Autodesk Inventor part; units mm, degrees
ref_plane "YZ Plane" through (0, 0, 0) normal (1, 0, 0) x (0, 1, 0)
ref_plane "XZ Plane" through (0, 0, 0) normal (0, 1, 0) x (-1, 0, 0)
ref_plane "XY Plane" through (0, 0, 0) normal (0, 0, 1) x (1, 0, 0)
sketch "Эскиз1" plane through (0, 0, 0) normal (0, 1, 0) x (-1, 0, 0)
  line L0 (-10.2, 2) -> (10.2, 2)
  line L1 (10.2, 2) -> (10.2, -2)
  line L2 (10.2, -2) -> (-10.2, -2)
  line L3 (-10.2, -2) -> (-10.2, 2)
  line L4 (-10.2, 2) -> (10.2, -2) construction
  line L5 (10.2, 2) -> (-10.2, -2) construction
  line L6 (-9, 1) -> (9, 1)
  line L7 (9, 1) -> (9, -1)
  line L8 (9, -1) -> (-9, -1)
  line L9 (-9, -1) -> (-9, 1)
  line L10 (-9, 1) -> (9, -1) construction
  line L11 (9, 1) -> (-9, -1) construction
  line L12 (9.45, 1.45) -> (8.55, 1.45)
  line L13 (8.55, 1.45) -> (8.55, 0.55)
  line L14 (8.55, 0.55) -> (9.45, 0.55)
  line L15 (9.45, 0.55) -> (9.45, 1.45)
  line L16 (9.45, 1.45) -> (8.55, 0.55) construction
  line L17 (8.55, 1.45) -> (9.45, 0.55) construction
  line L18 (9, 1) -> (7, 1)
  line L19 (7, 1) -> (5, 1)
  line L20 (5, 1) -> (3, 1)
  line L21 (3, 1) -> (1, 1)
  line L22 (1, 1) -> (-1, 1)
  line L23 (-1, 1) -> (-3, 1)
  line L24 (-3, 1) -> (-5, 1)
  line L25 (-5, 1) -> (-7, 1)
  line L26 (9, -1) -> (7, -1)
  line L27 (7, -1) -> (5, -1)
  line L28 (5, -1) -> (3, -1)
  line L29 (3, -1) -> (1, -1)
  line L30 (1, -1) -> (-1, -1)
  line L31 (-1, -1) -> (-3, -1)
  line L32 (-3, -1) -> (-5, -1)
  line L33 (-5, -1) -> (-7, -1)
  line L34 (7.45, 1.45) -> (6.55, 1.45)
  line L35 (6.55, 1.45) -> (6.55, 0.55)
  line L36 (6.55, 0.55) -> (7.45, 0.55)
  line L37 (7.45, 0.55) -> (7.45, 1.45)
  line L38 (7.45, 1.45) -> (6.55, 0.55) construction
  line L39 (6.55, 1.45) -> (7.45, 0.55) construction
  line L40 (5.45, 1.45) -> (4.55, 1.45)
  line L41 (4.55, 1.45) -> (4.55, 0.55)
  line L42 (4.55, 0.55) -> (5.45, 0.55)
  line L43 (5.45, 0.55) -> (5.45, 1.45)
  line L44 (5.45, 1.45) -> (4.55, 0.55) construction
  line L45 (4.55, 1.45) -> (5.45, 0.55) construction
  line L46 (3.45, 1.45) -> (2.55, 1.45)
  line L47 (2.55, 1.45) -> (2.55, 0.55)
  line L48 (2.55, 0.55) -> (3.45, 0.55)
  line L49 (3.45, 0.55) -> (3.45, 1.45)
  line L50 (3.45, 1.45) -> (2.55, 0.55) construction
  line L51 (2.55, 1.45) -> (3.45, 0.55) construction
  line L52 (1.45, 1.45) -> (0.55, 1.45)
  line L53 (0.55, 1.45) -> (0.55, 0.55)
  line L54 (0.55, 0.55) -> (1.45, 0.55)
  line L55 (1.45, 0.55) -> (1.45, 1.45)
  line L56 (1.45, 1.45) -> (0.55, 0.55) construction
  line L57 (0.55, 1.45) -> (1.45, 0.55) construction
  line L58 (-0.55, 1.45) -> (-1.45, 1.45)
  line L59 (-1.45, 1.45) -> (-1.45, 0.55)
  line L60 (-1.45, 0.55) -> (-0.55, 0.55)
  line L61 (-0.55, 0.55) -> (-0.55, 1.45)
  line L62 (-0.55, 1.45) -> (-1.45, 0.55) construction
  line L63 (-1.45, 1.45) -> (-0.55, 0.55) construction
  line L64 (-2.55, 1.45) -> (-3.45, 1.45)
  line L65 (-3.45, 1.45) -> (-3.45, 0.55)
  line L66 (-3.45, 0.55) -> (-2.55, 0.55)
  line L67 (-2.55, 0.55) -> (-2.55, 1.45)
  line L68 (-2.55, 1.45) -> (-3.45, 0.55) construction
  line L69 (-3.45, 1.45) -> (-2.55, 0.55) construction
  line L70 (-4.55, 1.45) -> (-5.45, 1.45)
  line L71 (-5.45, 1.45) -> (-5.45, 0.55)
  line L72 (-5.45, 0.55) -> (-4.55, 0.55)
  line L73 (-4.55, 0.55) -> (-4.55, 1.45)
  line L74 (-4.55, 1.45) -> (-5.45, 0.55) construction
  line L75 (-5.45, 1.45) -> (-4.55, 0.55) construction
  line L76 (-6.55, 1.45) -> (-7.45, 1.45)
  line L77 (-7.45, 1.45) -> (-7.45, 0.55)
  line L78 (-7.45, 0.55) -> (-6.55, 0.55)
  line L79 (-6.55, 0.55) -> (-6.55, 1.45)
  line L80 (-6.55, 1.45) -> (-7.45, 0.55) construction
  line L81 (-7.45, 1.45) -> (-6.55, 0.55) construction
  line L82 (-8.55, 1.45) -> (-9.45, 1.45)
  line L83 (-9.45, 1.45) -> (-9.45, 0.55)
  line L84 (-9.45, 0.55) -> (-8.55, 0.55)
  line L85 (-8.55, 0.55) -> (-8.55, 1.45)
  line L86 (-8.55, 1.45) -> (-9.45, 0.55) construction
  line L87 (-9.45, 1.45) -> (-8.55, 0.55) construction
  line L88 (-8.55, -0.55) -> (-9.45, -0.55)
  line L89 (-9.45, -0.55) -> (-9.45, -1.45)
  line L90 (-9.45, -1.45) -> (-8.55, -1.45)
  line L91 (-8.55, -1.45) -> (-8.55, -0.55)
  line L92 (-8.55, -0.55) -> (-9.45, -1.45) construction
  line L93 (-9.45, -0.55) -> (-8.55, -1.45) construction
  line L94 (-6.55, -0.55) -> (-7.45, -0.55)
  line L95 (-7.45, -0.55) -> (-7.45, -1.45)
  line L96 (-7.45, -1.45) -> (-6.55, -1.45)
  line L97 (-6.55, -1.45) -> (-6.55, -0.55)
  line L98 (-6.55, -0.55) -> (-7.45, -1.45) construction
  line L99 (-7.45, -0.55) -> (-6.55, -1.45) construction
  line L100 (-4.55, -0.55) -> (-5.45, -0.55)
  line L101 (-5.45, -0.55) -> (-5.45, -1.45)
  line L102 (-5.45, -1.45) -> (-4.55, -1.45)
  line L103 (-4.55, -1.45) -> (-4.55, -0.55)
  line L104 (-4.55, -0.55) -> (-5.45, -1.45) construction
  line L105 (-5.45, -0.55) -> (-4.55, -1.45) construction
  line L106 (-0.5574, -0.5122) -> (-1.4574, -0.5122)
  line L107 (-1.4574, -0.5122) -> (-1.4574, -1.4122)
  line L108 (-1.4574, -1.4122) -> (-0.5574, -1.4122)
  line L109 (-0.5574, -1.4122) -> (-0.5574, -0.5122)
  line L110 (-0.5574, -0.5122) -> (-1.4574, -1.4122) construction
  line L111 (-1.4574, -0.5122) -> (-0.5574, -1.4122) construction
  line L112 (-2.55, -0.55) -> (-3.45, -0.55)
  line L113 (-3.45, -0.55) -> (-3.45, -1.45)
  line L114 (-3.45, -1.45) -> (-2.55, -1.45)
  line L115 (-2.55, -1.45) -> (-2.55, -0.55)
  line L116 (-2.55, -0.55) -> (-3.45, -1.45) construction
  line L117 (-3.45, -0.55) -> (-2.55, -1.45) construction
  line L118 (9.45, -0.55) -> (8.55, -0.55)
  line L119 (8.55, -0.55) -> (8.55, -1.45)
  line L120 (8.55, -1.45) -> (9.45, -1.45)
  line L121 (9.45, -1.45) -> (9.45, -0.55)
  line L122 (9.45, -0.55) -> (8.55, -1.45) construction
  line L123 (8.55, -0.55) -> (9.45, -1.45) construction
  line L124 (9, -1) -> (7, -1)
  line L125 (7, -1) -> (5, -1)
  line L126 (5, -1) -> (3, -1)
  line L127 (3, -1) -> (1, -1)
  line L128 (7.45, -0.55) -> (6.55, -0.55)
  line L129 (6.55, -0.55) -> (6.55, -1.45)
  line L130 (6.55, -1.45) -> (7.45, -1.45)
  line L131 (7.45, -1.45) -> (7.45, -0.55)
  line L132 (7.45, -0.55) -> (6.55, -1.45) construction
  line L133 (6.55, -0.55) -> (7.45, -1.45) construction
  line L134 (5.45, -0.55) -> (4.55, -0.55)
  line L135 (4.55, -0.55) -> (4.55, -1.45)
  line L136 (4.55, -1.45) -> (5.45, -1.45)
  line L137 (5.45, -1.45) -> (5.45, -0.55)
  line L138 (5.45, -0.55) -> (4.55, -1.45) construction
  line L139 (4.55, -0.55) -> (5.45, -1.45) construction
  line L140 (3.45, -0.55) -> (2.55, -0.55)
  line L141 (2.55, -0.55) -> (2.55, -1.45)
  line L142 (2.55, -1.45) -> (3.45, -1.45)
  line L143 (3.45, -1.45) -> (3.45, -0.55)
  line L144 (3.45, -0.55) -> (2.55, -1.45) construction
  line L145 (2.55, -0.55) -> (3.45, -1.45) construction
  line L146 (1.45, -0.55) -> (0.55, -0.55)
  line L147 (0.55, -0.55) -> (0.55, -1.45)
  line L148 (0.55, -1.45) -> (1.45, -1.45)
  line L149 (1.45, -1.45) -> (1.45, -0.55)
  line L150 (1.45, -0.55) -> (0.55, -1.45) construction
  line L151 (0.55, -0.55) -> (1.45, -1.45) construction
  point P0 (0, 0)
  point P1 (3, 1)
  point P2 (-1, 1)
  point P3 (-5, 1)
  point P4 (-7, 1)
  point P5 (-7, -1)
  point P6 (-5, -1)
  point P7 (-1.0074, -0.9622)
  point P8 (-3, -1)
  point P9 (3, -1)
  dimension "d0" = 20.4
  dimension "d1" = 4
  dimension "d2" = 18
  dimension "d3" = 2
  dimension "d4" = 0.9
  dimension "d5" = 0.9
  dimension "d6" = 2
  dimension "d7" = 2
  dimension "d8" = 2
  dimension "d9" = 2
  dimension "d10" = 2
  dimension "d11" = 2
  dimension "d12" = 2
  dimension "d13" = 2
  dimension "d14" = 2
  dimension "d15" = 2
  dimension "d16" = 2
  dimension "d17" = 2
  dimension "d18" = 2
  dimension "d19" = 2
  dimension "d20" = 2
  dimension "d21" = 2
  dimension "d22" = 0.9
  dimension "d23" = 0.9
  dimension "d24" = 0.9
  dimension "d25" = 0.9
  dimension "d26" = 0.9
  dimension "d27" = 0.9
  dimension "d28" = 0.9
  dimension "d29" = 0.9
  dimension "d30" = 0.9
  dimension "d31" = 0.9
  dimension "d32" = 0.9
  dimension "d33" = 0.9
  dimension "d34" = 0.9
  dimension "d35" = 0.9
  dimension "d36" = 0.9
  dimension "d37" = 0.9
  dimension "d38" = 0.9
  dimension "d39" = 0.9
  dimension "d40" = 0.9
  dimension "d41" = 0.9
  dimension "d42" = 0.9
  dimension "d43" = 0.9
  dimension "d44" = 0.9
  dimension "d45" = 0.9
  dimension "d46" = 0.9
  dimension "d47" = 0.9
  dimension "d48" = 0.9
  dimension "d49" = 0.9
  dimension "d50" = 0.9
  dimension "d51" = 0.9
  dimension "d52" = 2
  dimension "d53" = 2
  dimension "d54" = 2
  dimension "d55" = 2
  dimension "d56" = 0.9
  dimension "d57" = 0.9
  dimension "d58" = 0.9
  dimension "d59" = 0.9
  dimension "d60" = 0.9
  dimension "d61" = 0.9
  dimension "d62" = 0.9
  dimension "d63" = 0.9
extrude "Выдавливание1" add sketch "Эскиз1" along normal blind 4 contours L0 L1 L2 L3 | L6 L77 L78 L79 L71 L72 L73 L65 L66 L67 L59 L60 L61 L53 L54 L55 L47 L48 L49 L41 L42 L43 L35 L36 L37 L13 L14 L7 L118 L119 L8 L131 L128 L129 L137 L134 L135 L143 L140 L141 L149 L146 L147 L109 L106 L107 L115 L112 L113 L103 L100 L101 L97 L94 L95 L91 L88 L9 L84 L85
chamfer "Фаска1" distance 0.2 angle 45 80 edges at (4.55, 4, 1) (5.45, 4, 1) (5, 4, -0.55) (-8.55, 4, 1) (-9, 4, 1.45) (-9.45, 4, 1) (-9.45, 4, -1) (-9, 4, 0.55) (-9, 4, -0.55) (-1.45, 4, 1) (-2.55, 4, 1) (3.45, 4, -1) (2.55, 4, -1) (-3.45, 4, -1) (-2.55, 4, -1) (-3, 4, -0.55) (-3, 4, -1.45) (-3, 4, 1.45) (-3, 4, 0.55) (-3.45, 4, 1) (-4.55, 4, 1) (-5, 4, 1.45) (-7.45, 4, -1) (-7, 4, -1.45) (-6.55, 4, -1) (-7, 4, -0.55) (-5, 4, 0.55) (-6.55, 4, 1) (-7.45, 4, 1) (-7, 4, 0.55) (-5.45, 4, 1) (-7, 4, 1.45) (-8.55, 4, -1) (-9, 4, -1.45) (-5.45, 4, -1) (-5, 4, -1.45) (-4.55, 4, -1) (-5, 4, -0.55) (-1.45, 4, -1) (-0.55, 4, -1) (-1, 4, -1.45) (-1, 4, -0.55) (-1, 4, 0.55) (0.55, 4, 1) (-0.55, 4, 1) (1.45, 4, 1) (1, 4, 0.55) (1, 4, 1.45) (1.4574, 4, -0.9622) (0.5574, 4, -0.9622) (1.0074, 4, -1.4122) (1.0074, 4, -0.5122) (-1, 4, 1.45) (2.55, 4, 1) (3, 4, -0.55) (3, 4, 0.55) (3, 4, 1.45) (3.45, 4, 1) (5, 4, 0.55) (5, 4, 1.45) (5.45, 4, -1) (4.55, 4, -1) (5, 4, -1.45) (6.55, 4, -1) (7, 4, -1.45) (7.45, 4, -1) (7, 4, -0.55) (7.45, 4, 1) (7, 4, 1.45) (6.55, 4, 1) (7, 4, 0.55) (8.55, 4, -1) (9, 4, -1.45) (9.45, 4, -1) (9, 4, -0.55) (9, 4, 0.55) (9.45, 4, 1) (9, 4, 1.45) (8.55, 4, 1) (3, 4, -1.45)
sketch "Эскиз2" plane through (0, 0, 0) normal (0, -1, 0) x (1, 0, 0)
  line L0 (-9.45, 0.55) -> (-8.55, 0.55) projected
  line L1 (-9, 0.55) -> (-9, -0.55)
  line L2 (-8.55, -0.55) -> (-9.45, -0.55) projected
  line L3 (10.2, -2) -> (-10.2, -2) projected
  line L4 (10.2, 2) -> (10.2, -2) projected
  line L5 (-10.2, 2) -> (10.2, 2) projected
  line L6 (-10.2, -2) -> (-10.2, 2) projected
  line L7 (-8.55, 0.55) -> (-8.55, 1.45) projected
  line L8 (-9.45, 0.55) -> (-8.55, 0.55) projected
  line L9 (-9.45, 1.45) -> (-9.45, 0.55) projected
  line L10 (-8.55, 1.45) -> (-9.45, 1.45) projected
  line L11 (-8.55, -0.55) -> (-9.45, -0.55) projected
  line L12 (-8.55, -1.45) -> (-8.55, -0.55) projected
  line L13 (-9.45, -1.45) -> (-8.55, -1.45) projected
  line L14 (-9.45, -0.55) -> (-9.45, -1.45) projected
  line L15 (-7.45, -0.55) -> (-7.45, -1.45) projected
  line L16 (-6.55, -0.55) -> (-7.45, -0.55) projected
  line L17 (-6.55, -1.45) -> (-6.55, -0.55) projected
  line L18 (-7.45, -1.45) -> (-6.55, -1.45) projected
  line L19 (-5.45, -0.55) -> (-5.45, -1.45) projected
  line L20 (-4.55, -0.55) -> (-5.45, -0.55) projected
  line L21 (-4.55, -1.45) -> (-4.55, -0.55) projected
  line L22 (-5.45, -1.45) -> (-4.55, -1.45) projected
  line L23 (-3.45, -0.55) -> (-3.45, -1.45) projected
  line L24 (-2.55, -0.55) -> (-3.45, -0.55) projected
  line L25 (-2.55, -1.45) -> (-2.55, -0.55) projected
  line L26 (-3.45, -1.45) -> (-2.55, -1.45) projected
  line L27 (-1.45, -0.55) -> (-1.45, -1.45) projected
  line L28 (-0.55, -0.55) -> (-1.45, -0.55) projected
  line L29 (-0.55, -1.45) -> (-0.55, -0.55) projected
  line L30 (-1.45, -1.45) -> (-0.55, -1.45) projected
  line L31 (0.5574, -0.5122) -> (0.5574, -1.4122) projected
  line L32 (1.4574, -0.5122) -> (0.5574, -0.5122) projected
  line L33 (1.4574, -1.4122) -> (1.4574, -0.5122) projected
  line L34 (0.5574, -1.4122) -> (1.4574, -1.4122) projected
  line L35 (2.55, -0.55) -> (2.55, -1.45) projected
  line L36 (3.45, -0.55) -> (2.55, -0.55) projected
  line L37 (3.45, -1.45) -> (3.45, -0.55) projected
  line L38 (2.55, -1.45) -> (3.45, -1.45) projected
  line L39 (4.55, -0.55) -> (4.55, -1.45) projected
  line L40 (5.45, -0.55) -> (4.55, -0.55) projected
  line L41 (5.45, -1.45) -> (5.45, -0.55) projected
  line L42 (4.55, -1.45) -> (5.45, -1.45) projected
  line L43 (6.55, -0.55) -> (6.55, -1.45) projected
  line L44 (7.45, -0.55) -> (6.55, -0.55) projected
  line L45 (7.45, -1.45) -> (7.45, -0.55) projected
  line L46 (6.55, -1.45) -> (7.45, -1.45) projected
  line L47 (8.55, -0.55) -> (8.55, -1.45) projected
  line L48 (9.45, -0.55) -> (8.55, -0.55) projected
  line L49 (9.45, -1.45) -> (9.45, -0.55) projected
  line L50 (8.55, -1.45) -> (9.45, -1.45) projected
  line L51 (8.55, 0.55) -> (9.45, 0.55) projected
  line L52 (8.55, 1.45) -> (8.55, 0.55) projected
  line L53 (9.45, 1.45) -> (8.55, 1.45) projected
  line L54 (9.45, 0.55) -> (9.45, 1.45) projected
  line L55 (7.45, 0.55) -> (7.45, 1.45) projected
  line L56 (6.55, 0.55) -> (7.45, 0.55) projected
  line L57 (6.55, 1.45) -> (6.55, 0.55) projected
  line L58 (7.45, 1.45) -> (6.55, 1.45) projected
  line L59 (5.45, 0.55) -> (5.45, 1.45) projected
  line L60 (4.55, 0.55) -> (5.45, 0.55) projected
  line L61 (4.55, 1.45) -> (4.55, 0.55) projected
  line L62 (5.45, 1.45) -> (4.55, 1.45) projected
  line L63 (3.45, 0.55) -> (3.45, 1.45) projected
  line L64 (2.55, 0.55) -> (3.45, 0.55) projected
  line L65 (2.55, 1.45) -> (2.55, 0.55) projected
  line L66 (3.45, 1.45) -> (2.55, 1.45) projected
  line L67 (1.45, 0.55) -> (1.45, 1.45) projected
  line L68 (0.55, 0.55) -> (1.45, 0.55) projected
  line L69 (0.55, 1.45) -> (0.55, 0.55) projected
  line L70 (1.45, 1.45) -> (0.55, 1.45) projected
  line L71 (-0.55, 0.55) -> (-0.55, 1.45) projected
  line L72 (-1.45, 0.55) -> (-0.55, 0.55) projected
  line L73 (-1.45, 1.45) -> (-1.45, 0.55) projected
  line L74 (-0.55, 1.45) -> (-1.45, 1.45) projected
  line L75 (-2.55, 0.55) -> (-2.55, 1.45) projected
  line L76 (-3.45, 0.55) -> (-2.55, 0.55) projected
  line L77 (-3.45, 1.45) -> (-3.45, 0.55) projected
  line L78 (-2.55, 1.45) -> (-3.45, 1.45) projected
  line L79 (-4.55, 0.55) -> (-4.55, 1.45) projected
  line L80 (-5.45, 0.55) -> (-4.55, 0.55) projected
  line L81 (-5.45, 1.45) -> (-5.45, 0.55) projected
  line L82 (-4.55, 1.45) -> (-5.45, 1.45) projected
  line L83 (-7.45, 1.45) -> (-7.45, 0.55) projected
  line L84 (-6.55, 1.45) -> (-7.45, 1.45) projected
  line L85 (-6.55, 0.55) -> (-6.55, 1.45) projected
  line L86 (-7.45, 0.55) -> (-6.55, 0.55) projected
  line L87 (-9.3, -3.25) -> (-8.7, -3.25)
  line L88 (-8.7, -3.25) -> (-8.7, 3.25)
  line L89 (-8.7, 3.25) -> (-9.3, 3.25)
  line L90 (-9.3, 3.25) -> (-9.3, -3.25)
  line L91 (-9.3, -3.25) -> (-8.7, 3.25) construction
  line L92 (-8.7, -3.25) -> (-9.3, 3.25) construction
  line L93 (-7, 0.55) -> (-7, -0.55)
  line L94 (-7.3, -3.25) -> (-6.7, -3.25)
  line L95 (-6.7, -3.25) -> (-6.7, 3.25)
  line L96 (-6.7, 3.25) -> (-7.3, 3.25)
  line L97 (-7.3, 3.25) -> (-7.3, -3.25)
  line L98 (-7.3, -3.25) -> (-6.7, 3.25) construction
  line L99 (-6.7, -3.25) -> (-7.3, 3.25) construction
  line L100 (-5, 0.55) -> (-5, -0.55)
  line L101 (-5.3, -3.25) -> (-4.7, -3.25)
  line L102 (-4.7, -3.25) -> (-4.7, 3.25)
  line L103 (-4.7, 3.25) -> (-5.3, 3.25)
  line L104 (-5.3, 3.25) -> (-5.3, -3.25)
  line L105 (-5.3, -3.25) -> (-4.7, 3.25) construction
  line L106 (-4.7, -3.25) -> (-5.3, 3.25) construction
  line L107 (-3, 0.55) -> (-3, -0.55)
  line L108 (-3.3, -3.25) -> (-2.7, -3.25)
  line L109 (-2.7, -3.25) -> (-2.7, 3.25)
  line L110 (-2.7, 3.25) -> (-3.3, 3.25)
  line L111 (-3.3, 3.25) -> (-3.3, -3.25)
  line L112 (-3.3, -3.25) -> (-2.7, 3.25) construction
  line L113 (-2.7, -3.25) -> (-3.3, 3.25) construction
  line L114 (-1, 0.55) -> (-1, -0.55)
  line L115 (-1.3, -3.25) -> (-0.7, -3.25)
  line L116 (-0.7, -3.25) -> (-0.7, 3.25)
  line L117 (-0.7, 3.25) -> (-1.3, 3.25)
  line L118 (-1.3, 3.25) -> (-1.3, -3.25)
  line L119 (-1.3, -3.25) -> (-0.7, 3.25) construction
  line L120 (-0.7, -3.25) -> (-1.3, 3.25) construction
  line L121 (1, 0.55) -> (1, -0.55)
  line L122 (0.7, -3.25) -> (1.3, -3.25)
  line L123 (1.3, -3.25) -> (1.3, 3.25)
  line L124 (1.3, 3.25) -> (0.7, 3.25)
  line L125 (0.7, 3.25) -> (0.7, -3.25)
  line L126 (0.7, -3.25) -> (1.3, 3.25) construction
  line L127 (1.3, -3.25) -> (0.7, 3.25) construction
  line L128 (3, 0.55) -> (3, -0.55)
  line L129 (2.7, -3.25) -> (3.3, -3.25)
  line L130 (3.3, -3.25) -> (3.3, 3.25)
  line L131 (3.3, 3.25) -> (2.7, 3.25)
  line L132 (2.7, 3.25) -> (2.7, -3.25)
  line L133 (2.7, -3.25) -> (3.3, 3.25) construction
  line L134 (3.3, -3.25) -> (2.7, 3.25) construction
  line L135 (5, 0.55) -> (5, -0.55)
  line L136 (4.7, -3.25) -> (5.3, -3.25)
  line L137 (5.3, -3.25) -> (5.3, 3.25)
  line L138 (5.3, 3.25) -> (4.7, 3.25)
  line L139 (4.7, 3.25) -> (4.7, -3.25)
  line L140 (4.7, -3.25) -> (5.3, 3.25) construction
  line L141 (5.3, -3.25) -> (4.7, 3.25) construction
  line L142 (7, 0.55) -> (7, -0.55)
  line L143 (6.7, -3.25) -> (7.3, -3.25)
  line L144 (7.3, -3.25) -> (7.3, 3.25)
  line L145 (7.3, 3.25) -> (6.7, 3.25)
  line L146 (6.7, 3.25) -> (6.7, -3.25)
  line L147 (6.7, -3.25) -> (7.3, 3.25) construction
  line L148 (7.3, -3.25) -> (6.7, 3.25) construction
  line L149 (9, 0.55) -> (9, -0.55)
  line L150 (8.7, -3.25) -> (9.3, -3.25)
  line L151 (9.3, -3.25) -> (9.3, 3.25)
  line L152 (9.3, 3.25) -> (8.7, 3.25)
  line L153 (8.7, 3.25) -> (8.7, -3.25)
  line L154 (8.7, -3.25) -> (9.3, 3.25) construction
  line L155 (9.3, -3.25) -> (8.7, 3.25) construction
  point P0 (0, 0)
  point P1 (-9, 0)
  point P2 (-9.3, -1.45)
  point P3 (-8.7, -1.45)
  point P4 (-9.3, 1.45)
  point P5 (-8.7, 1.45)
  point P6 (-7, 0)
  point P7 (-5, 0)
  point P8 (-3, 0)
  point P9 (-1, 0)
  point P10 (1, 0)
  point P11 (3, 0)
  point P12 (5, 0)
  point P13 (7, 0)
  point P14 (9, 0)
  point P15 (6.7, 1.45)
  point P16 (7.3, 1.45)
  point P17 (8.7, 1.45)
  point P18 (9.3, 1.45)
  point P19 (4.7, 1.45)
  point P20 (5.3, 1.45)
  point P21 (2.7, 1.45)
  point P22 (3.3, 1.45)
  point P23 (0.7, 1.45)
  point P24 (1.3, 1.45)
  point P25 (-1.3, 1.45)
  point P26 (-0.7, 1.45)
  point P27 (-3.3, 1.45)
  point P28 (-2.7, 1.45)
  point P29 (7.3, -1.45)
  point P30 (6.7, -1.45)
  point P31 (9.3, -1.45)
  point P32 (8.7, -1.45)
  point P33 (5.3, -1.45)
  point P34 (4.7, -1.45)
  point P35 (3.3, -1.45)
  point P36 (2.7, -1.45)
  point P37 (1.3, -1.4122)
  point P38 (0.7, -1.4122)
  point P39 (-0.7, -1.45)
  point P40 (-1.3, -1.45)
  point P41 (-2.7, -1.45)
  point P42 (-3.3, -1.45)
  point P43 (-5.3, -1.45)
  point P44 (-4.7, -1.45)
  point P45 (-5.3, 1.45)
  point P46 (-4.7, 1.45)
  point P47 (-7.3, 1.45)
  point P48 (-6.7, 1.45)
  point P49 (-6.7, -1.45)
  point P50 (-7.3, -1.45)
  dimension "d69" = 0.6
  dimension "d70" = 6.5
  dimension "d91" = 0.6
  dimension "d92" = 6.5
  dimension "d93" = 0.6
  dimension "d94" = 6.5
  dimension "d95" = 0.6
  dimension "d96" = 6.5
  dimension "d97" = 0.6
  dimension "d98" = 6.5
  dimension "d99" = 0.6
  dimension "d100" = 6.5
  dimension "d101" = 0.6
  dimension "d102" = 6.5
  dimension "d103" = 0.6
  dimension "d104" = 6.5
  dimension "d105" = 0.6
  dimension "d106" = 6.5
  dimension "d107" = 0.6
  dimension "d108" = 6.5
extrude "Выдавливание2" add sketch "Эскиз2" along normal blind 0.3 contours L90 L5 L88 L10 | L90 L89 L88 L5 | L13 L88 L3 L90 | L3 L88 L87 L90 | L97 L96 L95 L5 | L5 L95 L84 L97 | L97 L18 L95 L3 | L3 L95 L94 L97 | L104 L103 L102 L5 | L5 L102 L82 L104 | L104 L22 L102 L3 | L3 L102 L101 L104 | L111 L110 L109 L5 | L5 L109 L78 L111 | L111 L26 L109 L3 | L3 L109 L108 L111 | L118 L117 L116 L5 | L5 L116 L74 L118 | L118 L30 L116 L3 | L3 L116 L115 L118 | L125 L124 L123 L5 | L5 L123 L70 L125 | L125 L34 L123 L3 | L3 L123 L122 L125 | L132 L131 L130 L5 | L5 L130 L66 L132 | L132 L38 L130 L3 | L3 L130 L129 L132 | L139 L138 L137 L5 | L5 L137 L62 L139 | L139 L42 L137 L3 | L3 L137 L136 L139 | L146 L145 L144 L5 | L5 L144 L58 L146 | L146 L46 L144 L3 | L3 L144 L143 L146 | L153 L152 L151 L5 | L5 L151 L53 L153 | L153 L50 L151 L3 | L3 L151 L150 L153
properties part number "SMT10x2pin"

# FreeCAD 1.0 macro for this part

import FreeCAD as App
import Part
import Sketcher

V = App.Vector
Q = App.Units.Quantity


def edges_at(feature, points):
    """Names of the edges that pass closest to the given points."""
    edges = feature.Shape.Edges
    near = lambda p: min(range(len(edges)), key=lambda i: edges[i].distToShape(Part.Vertex(*p))[0])
    return sorted({f"Edge{near(p) + 1}" for p in points})


def add_polygon(sketch, points):
    """Adds a closed chain of lines whose ends are joined by coincident constraints."""
    first, n = sketch.GeometryCount, len(points)
    for a, b in zip(points, points[1:] + points[:1]):
        sketch.addGeometry(Part.LineSegment(App.Vector(*a, 0), App.Vector(*b, 0)), False)
    for i in range(n):
        sketch.addConstraint(Sketcher.Constraint("Coincident", first + i, 2, first + (i + 1) % n, 1))

doc = App.newDocument("Part")
body = doc.addObject("PartDesign::Body", "Body")

sketch1 = doc.addObject("Sketcher::SketchObject", "Sketch")
body.addObject(sketch1)
sketch1.AttachmentSupport = (doc.XZ_Plane, [""])
sketch1.MapMode = "FlatFace"
add_polygon(sketch1, [(-10.2, 2), (10.2, 2), (10.2, -2), (-10.2, -2)])
add_polygon(sketch1, [(8.6, 1.4), (8.6, 0.6), (9.4, 0.6), (9.4, 1.4)])
add_polygon(sketch1, [(9.4, -0.6), (8.6, -0.6), (8.6, -1.4), (9.4, -1.4)])
add_polygon(sketch1, [(7.5, -1.4), (7.5, -0.6), (6.5, -0.6), (6.5, -1.4)])
add_polygon(sketch1, [(5.5, -1.4), (5.5, -0.6), (4.5, -0.6), (4.5, -1.4)])
add_polygon(sketch1, [(3.5, -1.4), (3.5, -0.6), (2.5, -0.6), (2.5, -1.4)])
add_polygon(sketch1, [(1.5, -1.4), (1.5, -0.5), (0.6, -0.5), (0.6, -1.4)])
add_polygon(sketch1, [(-0.6, -1.4), (-0.6, -0.6), (-1.4, -0.6), (-1.4, -1.4)])
add_polygon(sketch1, [(-2.5, -1.4), (-2.5, -0.6), (-3.5, -0.6), (-3.5, -1.4)])
add_polygon(sketch1, [(-4.5, -1.4), (-4.5, -0.6), (-5.5, -0.6), (-5.5, -1.4)])
add_polygon(sketch1, [(-6.5, -1.4), (-6.5, -0.6), (-7.5, -0.6), (-7.5, -1.4)])
add_polygon(sketch1, [(-8.6, -1.4), (-8.6, -0.6), (-9.4, -0.6), (-9.4, -1.4)])
add_polygon(sketch1, [(-9.4, 0.6), (-8.6, 0.6), (-8.6, 1.4), (-9.4, 1.4)])
add_polygon(sketch1, [(-7.5, 1.4), (-7.5, 0.6), (-6.5, 0.6), (-6.5, 1.4)])
add_polygon(sketch1, [(-5.5, 1.4), (-5.5, 0.6), (-4.5, 0.6), (-4.5, 1.4)])
add_polygon(sketch1, [(-3.5, 1.4), (-3.5, 0.6), (-2.5, 0.6), (-2.5, 1.4)])
add_polygon(sketch1, [(-1.4, 1.4), (-1.4, 0.6), (-0.6, 0.6), (-0.6, 1.4)])
add_polygon(sketch1, [(0.6, 1.4), (0.6, 0.6), (1.4, 0.6), (1.4, 1.4)])
add_polygon(sketch1, [(2.5, 1.4), (2.5, 0.6), (3.5, 0.6), (3.5, 1.4)])
add_polygon(sketch1, [(4.5, 1.4), (4.5, 0.6), (5.5, 0.6), (5.5, 1.4)])
add_polygon(sketch1, [(6.5, 1.4), (6.5, 0.6), (7.5, 0.6), (7.5, 1.4)])
sketch1.addConstraint(Sketcher.Constraint("Horizontal", 0))
sketch1.addConstraint(Sketcher.Constraint("Vertical", 1))
sketch1.addConstraint(Sketcher.Constraint("Horizontal", 2))
sketch1.addConstraint(Sketcher.Constraint("Vertical", 3))
sketch1.addConstraint(Sketcher.Constraint("Vertical", 4))
sketch1.addConstraint(Sketcher.Constraint("Horizontal", 5))
sketch1.addConstraint(Sketcher.Constraint("Vertical", 6))
sketch1.addConstraint(Sketcher.Constraint("Horizontal", 7))
sketch1.addConstraint(Sketcher.Constraint("Horizontal", 8))
sketch1.addConstraint(Sketcher.Constraint("Vertical", 9))
sketch1.addConstraint(Sketcher.Constraint("Horizontal", 10))
sketch1.addConstraint(Sketcher.Constraint("Vertical", 11))
sketch1.addConstraint(Sketcher.Constraint("Vertical", 12))
sketch1.addConstraint(Sketcher.Constraint("Horizontal", 13))
sketch1.addConstraint(Sketcher.Constraint("Vertical", 14))
sketch1.addConstraint(Sketcher.Constraint("Horizontal", 15))
sketch1.addConstraint(Sketcher.Constraint("Vertical", 16))
sketch1.addConstraint(Sketcher.Constraint("Horizontal", 17))
sketch1.addConstraint(Sketcher.Constraint("Vertical", 18))
sketch1.addConstraint(Sketcher.Constraint("Horizontal", 19))
sketch1.addConstraint(Sketcher.Constraint("Vertical", 20))
sketch1.addConstraint(Sketcher.Constraint("Horizontal", 21))
sketch1.addConstraint(Sketcher.Constraint("Vertical", 22))
sketch1.addConstraint(Sketcher.Constraint("Horizontal", 23))
sketch1.addConstraint(Sketcher.Constraint("Vertical", 24))
sketch1.addConstraint(Sketcher.Constraint("Horizontal", 25))
sketch1.addConstraint(Sketcher.Constraint("Vertical", 26))
sketch1.addConstraint(Sketcher.Constraint("Horizontal", 27))
sketch1.addConstraint(Sketcher.Constraint("Vertical", 28))
sketch1.addConstraint(Sketcher.Constraint("Horizontal", 29))
sketch1.addConstraint(Sketcher.Constraint("Vertical", 30))
sketch1.addConstraint(Sketcher.Constraint("Horizontal", 31))
sketch1.addConstraint(Sketcher.Constraint("Vertical", 32))
sketch1.addConstraint(Sketcher.Constraint("Horizontal", 33))
sketch1.addConstraint(Sketcher.Constraint("Vertical", 34))
sketch1.addConstraint(Sketcher.Constraint("Horizontal", 35))
sketch1.addConstraint(Sketcher.Constraint("Vertical", 36))
sketch1.addConstraint(Sketcher.Constraint("Horizontal", 37))
sketch1.addConstraint(Sketcher.Constraint("Vertical", 38))
sketch1.addConstraint(Sketcher.Constraint("Horizontal", 39))
sketch1.addConstraint(Sketcher.Constraint("Vertical", 40))
sketch1.addConstraint(Sketcher.Constraint("Horizontal", 41))
sketch1.addConstraint(Sketcher.Constraint("Vertical", 42))
sketch1.addConstraint(Sketcher.Constraint("Horizontal", 43))
sketch1.addConstraint(Sketcher.Constraint("Vertical", 44))
sketch1.addConstraint(Sketcher.Constraint("Horizontal", 45))
sketch1.addConstraint(Sketcher.Constraint("Vertical", 46))
sketch1.addConstraint(Sketcher.Constraint("Horizontal", 47))
sketch1.addConstraint(Sketcher.Constraint("Horizontal", 48))
sketch1.addConstraint(Sketcher.Constraint("Vertical", 49))
sketch1.addConstraint(Sketcher.Constraint("Horizontal", 50))
sketch1.addConstraint(Sketcher.Constraint("Vertical", 51))
sketch1.addConstraint(Sketcher.Constraint("Vertical", 52))
sketch1.addConstraint(Sketcher.Constraint("Horizontal", 53))
sketch1.addConstraint(Sketcher.Constraint("Vertical", 54))
sketch1.addConstraint(Sketcher.Constraint("Horizontal", 55))
sketch1.addConstraint(Sketcher.Constraint("Vertical", 56))
sketch1.addConstraint(Sketcher.Constraint("Horizontal", 57))
sketch1.addConstraint(Sketcher.Constraint("Vertical", 58))
sketch1.addConstraint(Sketcher.Constraint("Horizontal", 59))
sketch1.addConstraint(Sketcher.Constraint("Vertical", 60))
sketch1.addConstraint(Sketcher.Constraint("Horizontal", 61))
sketch1.addConstraint(Sketcher.Constraint("Vertical", 62))
sketch1.addConstraint(Sketcher.Constraint("Horizontal", 63))
sketch1.addConstraint(Sketcher.Constraint("Vertical", 64))
sketch1.addConstraint(Sketcher.Constraint("Horizontal", 65))
sketch1.addConstraint(Sketcher.Constraint("Vertical", 66))
sketch1.addConstraint(Sketcher.Constraint("Horizontal", 67))
sketch1.addConstraint(Sketcher.Constraint("Vertical", 68))
sketch1.addConstraint(Sketcher.Constraint("Horizontal", 69))
sketch1.addConstraint(Sketcher.Constraint("Vertical", 70))
sketch1.addConstraint(Sketcher.Constraint("Horizontal", 71))
sketch1.addConstraint(Sketcher.Constraint("Vertical", 72))
sketch1.addConstraint(Sketcher.Constraint("Horizontal", 73))
sketch1.addConstraint(Sketcher.Constraint("Vertical", 74))
sketch1.addConstraint(Sketcher.Constraint("Horizontal", 75))
sketch1.addConstraint(Sketcher.Constraint("Vertical", 76))
sketch1.addConstraint(Sketcher.Constraint("Horizontal", 77))
sketch1.addConstraint(Sketcher.Constraint("Vertical", 78))
sketch1.addConstraint(Sketcher.Constraint("Horizontal", 79))
sketch1.addConstraint(Sketcher.Constraint("Vertical", 80))
sketch1.addConstraint(Sketcher.Constraint("Horizontal", 81))
sketch1.addConstraint(Sketcher.Constraint("Vertical", 82))
sketch1.addConstraint(Sketcher.Constraint("Horizontal", 83))
sketch1.addConstraint(Sketcher.Constraint("Symmetric", 0, 2, 2, 2, -1, 1))
sketch1.addConstraint(Sketcher.Constraint("Symmetric", 4, 2, 44, 2, -1, 1))
sketch1.addConstraint(Sketcher.Constraint("Symmetric", 6, 2, 46, 2, -1, 1))
sketch1.addConstraint(Sketcher.Constraint("Symmetric", 8, 2, 48, 2, -1, 1))
sketch1.addConstraint(Sketcher.Constraint("Symmetric", 10, 2, 50, 2, -1, 1))
sketch1.addConstraint(Sketcher.Constraint("Symmetric", 12, 2, 52, 2, -1, 1))
sketch1.addConstraint(Sketcher.Constraint("Symmetric", 14, 2, 54, 2, -1, 1))
sketch1.addConstraint(Sketcher.Constraint("Symmetric", 16, 2, 56, 2, -1, 1))
sketch1.addConstraint(Sketcher.Constraint("Symmetric", 18, 2, 58, 2, -1, 1))
sketch1.addConstraint(Sketcher.Constraint("Symmetric", 20, 2, 60, 2, -1, 1))
sketch1.addConstraint(Sketcher.Constraint("Symmetric", 22, 2, 62, 2, -1, 1))
sketch1.addConstraint(Sketcher.Constraint("Symmetric", 28, 2, 68, 2, -1, 1))
sketch1.addConstraint(Sketcher.Constraint("Symmetric", 30, 2, 70, 2, -1, 1))
sketch1.addConstraint(Sketcher.Constraint("Symmetric", 32, 2, 72, 2, -1, 1))
sketch1.addConstraint(Sketcher.Constraint("Symmetric", 34, 2, 74, 2, -1, 1))
sketch1.addConstraint(Sketcher.Constraint("Symmetric", 36, 2, 76, 2, -1, 1))
sketch1.addConstraint(Sketcher.Constraint("Symmetric", 38, 2, 78, 2, -1, 1))
sketch1.addConstraint(Sketcher.Constraint("Symmetric", 40, 2, 80, 2, -1, 1))
sketch1.addConstraint(Sketcher.Constraint("Symmetric", 42, 2, 82, 2, -1, 1))
sketch1.addConstraint(Sketcher.Constraint("Symmetric", 21, 2, 32, 2, -2))
sketch1.addConstraint(Sketcher.Constraint("Symmetric", 23, 2, 34, 2, -2))
sketch1.addConstraint(Sketcher.Constraint("Symmetric", 17, 2, 36, 2, -2))
sketch1.addConstraint(Sketcher.Constraint("Symmetric", 19, 2, 38, 2, -2))
sketch1.addConstraint(Sketcher.Constraint("Symmetric", 13, 2, 40, 2, -2))
sketch1.addConstraint(Sketcher.Constraint("Symmetric", 15, 2, 42, 2, -2))
sketch1.addConstraint(Sketcher.Constraint("Symmetric", 8, 2, 44, 2, -2))
sketch1.addConstraint(Sketcher.Constraint("Symmetric", 10, 2, 46, 2, -2))
sketch1.addConstraint(Sketcher.Constraint("Symmetric", 65, 2, 68, 2, -2))
sketch1.addConstraint(Sketcher.Constraint("Symmetric", 67, 2, 70, 2, -2))
sketch1.addConstraint(Sketcher.Constraint("Horizontal", 11, 2, 12, 2))
sketch1.addConstraint(Sketcher.Constraint("Horizontal", 10, 2, 14, 2))
sketch1.addConstraint(Sketcher.Constraint("Horizontal", 13, 2, 16, 2))
sketch1.addConstraint(Sketcher.Constraint("Horizontal", 15, 2, 18, 2))
sketch1.addConstraint(Sketcher.Constraint("Horizontal", 17, 2, 20, 2))
sketch1.addConstraint(Sketcher.Constraint("Horizontal", 19, 2, 22, 2))
sketch1.addConstraint(Sketcher.Constraint("Horizontal", 21, 2, 28, 2))
sketch1.addConstraint(Sketcher.Constraint("Horizontal", 23, 2, 30, 2))
sketch1.addConstraint(Sketcher.Constraint("Equal", 10, 13))
sketch1.addConstraint(Sketcher.Constraint("Equal", 15, 17))
sketch1.addConstraint(Sketcher.Constraint("Equal", 19, 21))
sketch1.addConstraint(Sketcher.Constraint("Equal", 23, 25))
sketch1.addConstraint(Sketcher.Constraint("Equal", 27, 29))
sketch1.addConstraint(Sketcher.Constraint("Equal", 83, 4))
sketch1.addConstraint(Sketcher.Constraint("Equal", 22, 24))
sketch1.addConstraint(Sketcher.Constraint("DistanceY", 1, 2, 1, 1, Q("4 mm")))
sketch1.addConstraint(Sketcher.Constraint("DistanceX", 0, 1, 0, 2, Q("20.4 mm")))
sketch1.addConstraint(Sketcher.Constraint("DistanceX", 5, 1, 5, 2, Q("0.9 mm")))
sketch1.addConstraint(Sketcher.Constraint("DistanceX", -1, 1, 4, 2, Q("8.55 mm")))
sketch1.addConstraint(Sketcher.Constraint("DistanceY", -1, 1, 4, 2, Q("0.55 mm")))
sketch1.addConstraint(Sketcher.Constraint("DistanceX", -1, 1, 12, 2, Q("7.45 mm")))
sketch1.addConstraint(Sketcher.Constraint("DistanceX", -1, 1, 16, 2, Q("5.45 mm")))
sketch1.addConstraint(Sketcher.Constraint("DistanceX", -1, 1, 20, 2, Q("3.45 mm")))
sketch1.addConstraint(Sketcher.Constraint("DistanceX", 28, 2, -1, 1, Q("0.55 mm")))
sketch1.addConstraint(Sketcher.Constraint("DistanceX", -1, 1, 24, 2, Q("1.4574 mm")))
sketch1.addConstraint(Sketcher.Constraint("DistanceY", 24, 2, -1, 1, Q("0.5122 mm")))
pad1 = doc.addObject("PartDesign::Pad", "Pad")
body.addObject(pad1)
pad1.Profile = sketch1
pad1.Length = 4
pad1.Reversed = True
doc.recompute()

chamfer = doc.addObject("PartDesign::Chamfer", "Chamfer")
body.addObject(chamfer)
chamfer.Base = (pad1, edges_at(pad1, [
    (4.55, 4, 1),
    (5.45, 4, 1),
    (5, 4, -0.55),
    (-8.55, 4, 1),
    (-9, 4, 1.45),
    (-9.45, 4, 1),
    (-9.45, 4, -1),
    (-9, 4, 0.55),
    (-9, 4, -0.55),
    (-1.45, 4, 1),
    (-2.55, 4, 1),
    (3.45, 4, -1),
    (2.55, 4, -1),
    (-3.45, 4, -1),
    (-2.55, 4, -1),
    (-3, 4, -0.55),
    (-3, 4, -1.45),
    (-3, 4, 1.45),
    (-3, 4, 0.55),
    (-3.45, 4, 1),
    (-4.55, 4, 1),
    (-5, 4, 1.45),
    (-7.45, 4, -1),
    (-7, 4, -1.45),
    (-6.55, 4, -1),
    (-7, 4, -0.55),
    (-5, 4, 0.55),
    (-6.55, 4, 1),
    (-7.45, 4, 1),
    (-7, 4, 0.55),
    (-5.45, 4, 1),
    (-7, 4, 1.45),
    (-8.55, 4, -1),
    (-9, 4, -1.45),
    (-5.45, 4, -1),
    (-5, 4, -1.45),
    (-4.55, 4, -1),
    (-5, 4, -0.55),
    (-1.45, 4, -1),
    (-0.55, 4, -1),
    (-1, 4, -1.45),
    (-1, 4, -0.55),
    (-1, 4, 0.55),
    (0.55, 4, 1),
    (-0.55, 4, 1),
    (1.45, 4, 1),
    (1, 4, 0.55),
    (1, 4, 1.45),
    (1.457, 4, -0.962),
    (0.557, 4, -0.962),
    (1.007, 4, -1.412),
    (1.007, 4, -0.512),
    (-1, 4, 1.45),
    (2.55, 4, 1),
    (3, 4, -0.55),
    (3, 4, 0.55),
    (3, 4, 1.45),
    (3.45, 4, 1),
    (5, 4, 0.55),
    (5, 4, 1.45),
    (5.45, 4, -1),
    (4.55, 4, -1),
    (5, 4, -1.45),
    (6.55, 4, -1),
    (7, 4, -1.45),
    (7.45, 4, -1),
    (7, 4, -0.55),
    (7.45, 4, 1),
    (7, 4, 1.45),
    (6.55, 4, 1),
    (7, 4, 0.55),
    (8.55, 4, -1),
    (9, 4, -1.45),
    (9.45, 4, -1),
    (9, 4, -0.55),
    (9, 4, 0.55),
    (9.45, 4, 1),
    (9, 4, 1.45),
    (8.55, 4, 1),
    (3, 4, -1.45),
]))
chamfer.Size = 0.2

sketch2 = doc.addObject("Sketcher::SketchObject", "Sketch001")
body.addObject(sketch2)
sketch2.AttachmentSupport = (doc.XZ_Plane, [""])
sketch2.MapMode = "FlatFace"
add_polygon(sketch2, [(-9.3, 1.4), (-8.7, 1.4), (-8.7, 3.2), (-9.3, 3.2)])
add_polygon(sketch2, [(-8.7, -1.4), (-9.3, -1.4), (-9.3, -3.2), (-8.7, -3.2)])
add_polygon(sketch2, [(-7.3, 3.2), (-7.3, 1.4), (-6.7, 1.4), (-6.7, 3.2)])
add_polygon(sketch2, [(-7.3, -1.4), (-7.3, -3.2), (-6.7, -3.2), (-6.7, -1.4)])
add_polygon(sketch2, [(-5.3, 3.2), (-5.3, 1.4), (-4.7, 1.4), (-4.7, 3.2)])
add_polygon(sketch2, [(-5.3, -1.4), (-5.3, -3.2), (-4.7, -3.2), (-4.7, -1.4)])
add_polygon(sketch2, [(-3.3, 3.2), (-3.3, 1.4), (-2.7, 1.4), (-2.7, 3.2)])
add_polygon(sketch2, [(-3.3, -1.4), (-3.3, -3.2), (-2.7, -3.2), (-2.7, -1.4)])
add_polygon(sketch2, [(-1.3, 3.2), (-1.3, 1.4), (-0.7, 1.4), (-0.7, 3.2)])
add_polygon(sketch2, [(-1.3, -1.4), (-1.3, -3.2), (-0.7, -3.2), (-0.7, -1.4)])
add_polygon(sketch2, [(0.7, 3.2), (0.7, 1.4), (1.3, 1.4), (1.3, 3.2)])
add_polygon(sketch2, [(0.7, -1.4), (0.7, -3.2), (1.3, -3.2), (1.3, -1.4)])
add_polygon(sketch2, [(2.7, 3.2), (2.7, 1.4), (3.3, 1.4), (3.3, 3.2)])
add_polygon(sketch2, [(2.7, -1.4), (2.7, -3.2), (3.3, -3.2), (3.3, -1.4)])
add_polygon(sketch2, [(4.7, 3.2), (4.7, 1.4), (5.3, 1.4), (5.3, 3.2)])
add_polygon(sketch2, [(4.7, -1.4), (4.7, -3.2), (5.3, -3.2), (5.3, -1.4)])
add_polygon(sketch2, [(6.7, 3.2), (6.7, 1.4), (7.3, 1.4), (7.3, 3.2)])
add_polygon(sketch2, [(6.7, -1.4), (6.7, -3.2), (7.3, -3.2), (7.3, -1.4)])
add_polygon(sketch2, [(8.7, 3.2), (8.7, 1.4), (9.3, 1.4), (9.3, 3.2)])
add_polygon(sketch2, [(8.7, -1.4), (8.7, -3.2), (9.3, -3.2), (9.3, -1.4)])
sketch2.addConstraint(Sketcher.Constraint("Horizontal", 0))
sketch2.addConstraint(Sketcher.Constraint("Vertical", 1))
sketch2.addConstraint(Sketcher.Constraint("Horizontal", 2))
sketch2.addConstraint(Sketcher.Constraint("Vertical", 3))
sketch2.addConstraint(Sketcher.Constraint("Horizontal", 4))
sketch2.addConstraint(Sketcher.Constraint("Vertical", 5))
sketch2.addConstraint(Sketcher.Constraint("Horizontal", 6))
sketch2.addConstraint(Sketcher.Constraint("Vertical", 7))
sketch2.addConstraint(Sketcher.Constraint("Vertical", 8))
sketch2.addConstraint(Sketcher.Constraint("Horizontal", 9))
sketch2.addConstraint(Sketcher.Constraint("Vertical", 10))
sketch2.addConstraint(Sketcher.Constraint("Horizontal", 11))
sketch2.addConstraint(Sketcher.Constraint("Vertical", 12))
sketch2.addConstraint(Sketcher.Constraint("Horizontal", 13))
sketch2.addConstraint(Sketcher.Constraint("Vertical", 14))
sketch2.addConstraint(Sketcher.Constraint("Horizontal", 15))
sketch2.addConstraint(Sketcher.Constraint("Vertical", 16))
sketch2.addConstraint(Sketcher.Constraint("Horizontal", 17))
sketch2.addConstraint(Sketcher.Constraint("Vertical", 18))
sketch2.addConstraint(Sketcher.Constraint("Horizontal", 19))
sketch2.addConstraint(Sketcher.Constraint("Vertical", 20))
sketch2.addConstraint(Sketcher.Constraint("Horizontal", 21))
sketch2.addConstraint(Sketcher.Constraint("Vertical", 22))
sketch2.addConstraint(Sketcher.Constraint("Horizontal", 23))
sketch2.addConstraint(Sketcher.Constraint("Vertical", 24))
sketch2.addConstraint(Sketcher.Constraint("Horizontal", 25))
sketch2.addConstraint(Sketcher.Constraint("Vertical", 26))
sketch2.addConstraint(Sketcher.Constraint("Horizontal", 27))
sketch2.addConstraint(Sketcher.Constraint("Vertical", 28))
sketch2.addConstraint(Sketcher.Constraint("Horizontal", 29))
sketch2.addConstraint(Sketcher.Constraint("Vertical", 30))
sketch2.addConstraint(Sketcher.Constraint("Horizontal", 31))
sketch2.addConstraint(Sketcher.Constraint("Vertical", 32))
sketch2.addConstraint(Sketcher.Constraint("Horizontal", 33))
sketch2.addConstraint(Sketcher.Constraint("Vertical", 34))
sketch2.addConstraint(Sketcher.Constraint("Horizontal", 35))
sketch2.addConstraint(Sketcher.Constraint("Vertical", 36))
sketch2.addConstraint(Sketcher.Constraint("Horizontal", 37))
sketch2.addConstraint(Sketcher.Constraint("Vertical", 38))
sketch2.addConstraint(Sketcher.Constraint("Horizontal", 39))
sketch2.addConstraint(Sketcher.Constraint("Vertical", 40))
sketch2.addConstraint(Sketcher.Constraint("Horizontal", 41))
sketch2.addConstraint(Sketcher.Constraint("Vertical", 42))
sketch2.addConstraint(Sketcher.Constraint("Horizontal", 43))
sketch2.addConstraint(Sketcher.Constraint("Vertical", 44))
sketch2.addConstraint(Sketcher.Constraint("Horizontal", 45))
sketch2.addConstraint(Sketcher.Constraint("Vertical", 46))
sketch2.addConstraint(Sketcher.Constraint("Horizontal", 47))
sketch2.addConstraint(Sketcher.Constraint("Vertical", 48))
sketch2.addConstraint(Sketcher.Constraint("Horizontal", 49))
sketch2.addConstraint(Sketcher.Constraint("Vertical", 50))
sketch2.addConstraint(Sketcher.Constraint("Horizontal", 51))
sketch2.addConstraint(Sketcher.Constraint("Vertical", 52))
sketch2.addConstraint(Sketcher.Constraint("Horizontal", 53))
sketch2.addConstraint(Sketcher.Constraint("Vertical", 54))
sketch2.addConstraint(Sketcher.Constraint("Horizontal", 55))
sketch2.addConstraint(Sketcher.Constraint("Vertical", 56))
sketch2.addConstraint(Sketcher.Constraint("Horizontal", 57))
sketch2.addConstraint(Sketcher.Constraint("Vertical", 58))
sketch2.addConstraint(Sketcher.Constraint("Horizontal", 59))
sketch2.addConstraint(Sketcher.Constraint("Vertical", 60))
sketch2.addConstraint(Sketcher.Constraint("Horizontal", 61))
sketch2.addConstraint(Sketcher.Constraint("Vertical", 62))
sketch2.addConstraint(Sketcher.Constraint("Horizontal", 63))
sketch2.addConstraint(Sketcher.Constraint("Vertical", 64))
sketch2.addConstraint(Sketcher.Constraint("Horizontal", 65))
sketch2.addConstraint(Sketcher.Constraint("Vertical", 66))
sketch2.addConstraint(Sketcher.Constraint("Horizontal", 67))
sketch2.addConstraint(Sketcher.Constraint("Vertical", 68))
sketch2.addConstraint(Sketcher.Constraint("Horizontal", 69))
sketch2.addConstraint(Sketcher.Constraint("Vertical", 70))
sketch2.addConstraint(Sketcher.Constraint("Horizontal", 71))
sketch2.addConstraint(Sketcher.Constraint("Vertical", 72))
sketch2.addConstraint(Sketcher.Constraint("Horizontal", 73))
sketch2.addConstraint(Sketcher.Constraint("Vertical", 74))
sketch2.addConstraint(Sketcher.Constraint("Horizontal", 75))
sketch2.addConstraint(Sketcher.Constraint("Vertical", 76))
sketch2.addConstraint(Sketcher.Constraint("Horizontal", 77))
sketch2.addConstraint(Sketcher.Constraint("Vertical", 78))
sketch2.addConstraint(Sketcher.Constraint("Horizontal", 79))
sketch2.addConstraint(Sketcher.Constraint("Symmetric", 38, 2, 40, 2, -1, 1))
sketch2.addConstraint(Sketcher.Constraint("Symmetric", 36, 2, 42, 2, -1, 1))
sketch2.addConstraint(Sketcher.Constraint("Symmetric", 34, 2, 44, 2, -1, 1))
sketch2.addConstraint(Sketcher.Constraint("Symmetric", 30, 2, 48, 2, -1, 1))
sketch2.addConstraint(Sketcher.Constraint("Symmetric", 28, 2, 50, 2, -1, 1))
sketch2.addConstraint(Sketcher.Constraint("Symmetric", 26, 2, 52, 2, -1, 1))
sketch2.addConstraint(Sketcher.Constraint("Symmetric", 24, 2, 54, 2, -1, 1))
sketch2.addConstraint(Sketcher.Constraint("Symmetric", 22, 2, 56, 2, -1, 1))
sketch2.addConstraint(Sketcher.Constraint("Symmetric", 20, 2, 58, 2, -1, 1))
sketch2.addConstraint(Sketcher.Constraint("Symmetric", 18, 2, 60, 2, -1, 1))
sketch2.addConstraint(Sketcher.Constraint("Symmetric", 16, 2, 62, 2, -1, 1))
sketch2.addConstraint(Sketcher.Constraint("Symmetric", 14, 2, 64, 2, -1, 1))
sketch2.addConstraint(Sketcher.Constraint("Symmetric", 12, 2, 66, 2, -1, 1))
sketch2.addConstraint(Sketcher.Constraint("Symmetric", 10, 2, 68, 2, -1, 1))
sketch2.addConstraint(Sketcher.Constraint("Symmetric", 8, 2, 70, 2, -1, 1))
sketch2.addConstraint(Sketcher.Constraint("Symmetric", 7, 2, 72, 2, -1, 1))
sketch2.addConstraint(Sketcher.Constraint("Symmetric", 5, 2, 74, 2, -1, 1))
sketch2.addConstraint(Sketcher.Constraint("Symmetric", 1, 2, 76, 2, -1, 1))
sketch2.addConstraint(Sketcher.Constraint("Symmetric", 3, 2, 78, 2, -1, 1))
sketch2.addConstraint(Sketcher.Constraint("Symmetric", 33, 2, 40, 2, -2))
sketch2.addConstraint(Sketcher.Constraint("Symmetric", 35, 2, 42, 2, -2))
sketch2.addConstraint(Sketcher.Constraint("Symmetric", 25, 2, 48, 2, -2))
sketch2.addConstraint(Sketcher.Constraint("Symmetric", 27, 2, 50, 2, -2))
sketch2.addConstraint(Sketcher.Constraint("Symmetric", 17, 2, 56, 2, -2))
sketch2.addConstraint(Sketcher.Constraint("Symmetric", 19, 2, 58, 2, -2))
sketch2.addConstraint(Sketcher.Constraint("Symmetric", 9, 2, 64, 2, -2))
sketch2.addConstraint(Sketcher.Constraint("Symmetric", 11, 2, 66, 2, -2))
sketch2.addConstraint(Sketcher.Constraint("Symmetric", 0, 2, 72, 2, -2))
sketch2.addConstraint(Sketcher.Constraint("Symmetric", 2, 2, 74, 2, -2))
sketch2.addConstraint(Sketcher.Constraint("Horizontal", 3, 2, 8, 2))
sketch2.addConstraint(Sketcher.Constraint("Horizontal", 2, 2, 10, 2))
sketch2.addConstraint(Sketcher.Constraint("Horizontal", 9, 2, 16, 2))
sketch2.addConstraint(Sketcher.Constraint("Horizontal", 11, 2, 18, 2))
sketch2.addConstraint(Sketcher.Constraint("Horizontal", 17, 2, 24, 2))
sketch2.addConstraint(Sketcher.Constraint("Horizontal", 19, 2, 26, 2))
sketch2.addConstraint(Sketcher.Constraint("Horizontal", 25, 2, 32, 2))
sketch2.addConstraint(Sketcher.Constraint("Horizontal", 27, 2, 34, 2))
sketch2.addConstraint(Sketcher.Constraint("Vertical", 42, 2, 45, 2))
sketch2.addConstraint(Sketcher.Constraint("Equal", 6, 9))
sketch2.addConstraint(Sketcher.Constraint("Equal", 15, 17))
sketch2.addConstraint(Sketcher.Constraint("Equal", 23, 25))
sketch2.addConstraint(Sketcher.Constraint("Equal", 31, 33))
sketch2.addConstraint(Sketcher.Constraint("DistanceX", 0, 1, 0, 2, Q("0.6 mm")))
sketch2.addConstraint(Sketcher.Constraint("DistanceY", 1, 1, 1, 2, Q("1.8 mm")))
sketch2.addConstraint(Sketcher.Constraint("DistanceX", 0, 2, -1, 1, Q("8.7 mm")))
sketch2.addConstraint(Sketcher.Constraint("DistanceX", 8, 2, -1, 1, Q("7.3 mm")))
sketch2.addConstraint(Sketcher.Constraint("DistanceX", 16, 2, -1, 1, Q("5.3 mm")))
sketch2.addConstraint(Sketcher.Constraint("DistanceX", 24, 2, -1, 1, Q("3.3 mm")))
sketch2.addConstraint(Sketcher.Constraint("DistanceX", 32, 2, -1, 1, Q("1.3 mm")))
sketch2.addConstraint(Sketcher.Constraint("DistanceY", -1, 1, 0, 2, Q("1.45 mm")))
sketch2.addConstraint(Sketcher.Constraint("DistanceY", 44, 2, 44, 1, Q("1.8378 mm")))
pad2 = doc.addObject("PartDesign::Pad", "Pad001")
body.addObject(pad2)
pad2.Profile = sketch2
pad2.Length = 0.3

doc.recompute()
